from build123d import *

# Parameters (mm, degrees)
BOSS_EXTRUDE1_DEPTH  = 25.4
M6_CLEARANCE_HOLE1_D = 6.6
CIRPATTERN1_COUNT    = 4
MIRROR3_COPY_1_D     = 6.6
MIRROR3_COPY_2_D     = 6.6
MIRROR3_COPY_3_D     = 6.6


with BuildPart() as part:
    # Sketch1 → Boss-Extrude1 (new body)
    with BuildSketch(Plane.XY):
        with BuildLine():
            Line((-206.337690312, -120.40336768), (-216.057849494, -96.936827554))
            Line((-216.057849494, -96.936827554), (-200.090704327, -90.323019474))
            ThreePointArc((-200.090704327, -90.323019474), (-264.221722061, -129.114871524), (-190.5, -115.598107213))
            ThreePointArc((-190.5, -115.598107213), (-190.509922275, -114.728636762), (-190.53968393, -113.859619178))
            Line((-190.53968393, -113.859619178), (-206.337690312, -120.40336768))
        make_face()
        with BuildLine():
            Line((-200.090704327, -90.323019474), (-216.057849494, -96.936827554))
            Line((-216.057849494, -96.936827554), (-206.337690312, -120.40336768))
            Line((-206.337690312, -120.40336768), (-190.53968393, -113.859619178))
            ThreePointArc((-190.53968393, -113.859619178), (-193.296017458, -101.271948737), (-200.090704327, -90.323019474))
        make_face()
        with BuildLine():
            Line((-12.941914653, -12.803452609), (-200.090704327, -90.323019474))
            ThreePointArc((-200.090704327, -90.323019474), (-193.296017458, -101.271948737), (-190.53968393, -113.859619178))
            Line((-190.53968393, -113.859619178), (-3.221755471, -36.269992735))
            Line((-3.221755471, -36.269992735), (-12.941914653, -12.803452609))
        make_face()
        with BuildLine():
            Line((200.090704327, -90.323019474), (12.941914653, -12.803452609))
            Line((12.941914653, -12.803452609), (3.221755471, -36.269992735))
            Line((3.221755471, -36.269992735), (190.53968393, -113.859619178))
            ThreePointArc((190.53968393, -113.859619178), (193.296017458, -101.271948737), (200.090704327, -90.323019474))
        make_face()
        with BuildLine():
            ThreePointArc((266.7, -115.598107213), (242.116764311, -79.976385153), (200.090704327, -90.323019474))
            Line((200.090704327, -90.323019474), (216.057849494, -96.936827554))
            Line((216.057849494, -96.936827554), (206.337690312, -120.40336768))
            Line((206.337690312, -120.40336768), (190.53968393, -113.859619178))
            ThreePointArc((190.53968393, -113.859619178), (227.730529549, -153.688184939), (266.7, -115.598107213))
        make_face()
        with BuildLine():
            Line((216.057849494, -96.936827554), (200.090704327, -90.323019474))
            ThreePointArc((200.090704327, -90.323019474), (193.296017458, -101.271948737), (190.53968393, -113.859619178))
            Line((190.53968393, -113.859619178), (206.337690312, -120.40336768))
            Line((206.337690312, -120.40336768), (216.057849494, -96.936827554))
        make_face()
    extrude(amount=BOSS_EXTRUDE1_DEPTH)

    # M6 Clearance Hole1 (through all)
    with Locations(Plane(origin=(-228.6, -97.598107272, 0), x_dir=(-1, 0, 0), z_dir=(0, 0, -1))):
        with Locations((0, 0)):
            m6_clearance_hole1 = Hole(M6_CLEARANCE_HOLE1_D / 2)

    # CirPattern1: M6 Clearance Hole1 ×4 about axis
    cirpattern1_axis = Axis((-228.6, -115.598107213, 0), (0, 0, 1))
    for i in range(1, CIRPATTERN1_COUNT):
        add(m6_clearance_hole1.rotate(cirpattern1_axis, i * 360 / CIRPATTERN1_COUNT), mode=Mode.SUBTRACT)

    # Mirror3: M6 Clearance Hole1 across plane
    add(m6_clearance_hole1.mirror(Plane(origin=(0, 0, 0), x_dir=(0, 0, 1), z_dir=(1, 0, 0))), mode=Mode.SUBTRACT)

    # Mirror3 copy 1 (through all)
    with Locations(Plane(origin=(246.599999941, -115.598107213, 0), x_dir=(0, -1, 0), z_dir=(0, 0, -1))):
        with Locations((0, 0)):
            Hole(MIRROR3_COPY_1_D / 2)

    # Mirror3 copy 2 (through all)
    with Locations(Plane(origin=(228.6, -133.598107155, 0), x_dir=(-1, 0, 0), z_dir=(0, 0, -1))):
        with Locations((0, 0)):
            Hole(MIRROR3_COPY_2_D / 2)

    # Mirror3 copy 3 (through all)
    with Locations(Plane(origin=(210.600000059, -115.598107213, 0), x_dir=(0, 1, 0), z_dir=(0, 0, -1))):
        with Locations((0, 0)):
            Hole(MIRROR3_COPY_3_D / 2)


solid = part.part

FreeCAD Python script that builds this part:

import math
import FreeCAD as App
import Part
import Sketcher

V = App.Vector
Q = App.Units.Quantity

doc = App.newDocument("Part")
params = doc.addObject("Spreadsheet::Sheet", "Params")
for row, (alias, value) in enumerate([
    ("sketch1_radius", "1.5 in"),
    ("sketch1_length", "1 in"),
    ("pad1_length", "1 in"),
    ("hole_diameter", "6.6 mm"),
    ("hole2_diameter", "6.6 mm"),
    ("hole3_diameter", "6.6 mm"),
    ("hole4_diameter", "6.6 mm"),
], start=1):
    params.set(f"A{row}", alias)
    params.set(f"B{row}", "=" + value)
    params.setAlias(f"B{row}", alias)

body = doc.addObject("PartDesign::Body", "Body")
body.AllowCompound = True

sketch1 = body.newObject("Sketcher::SketchObject", "Sketch")
sketch1.AttachmentSupport = (doc.getObject("XY_Plane"), [""])
sketch1.MapMode = "FlatFace"
sketch1.addGeometry([
    Part.ArcOfCircle(Part.Circle(V(-228.6, -115.6, 0), V(0, 0, 1), 38.1), math.radians(42), math.radians(360)),
    Part.ArcOfCircle(Part.Circle(V(-228.6, -115.6, 0), V(0, 0, 1), 38.1), math.radians(0), math.radians(2.62)),
    Part.LineSegment(V(-190.5, -113.9, 0), V(-3.2, -36.3, 0)),
    Part.LineSegment(V(-3.2, -36.3, 0), V(-12.9, -12.8, 0)),
    Part.LineSegment(V(-12.9, -12.8, 0), V(-200.1, -90.3, 0)),
    Part.LineSegment(V(12.9, -12.8, 0), V(3.2, -36.3, 0)),
    Part.LineSegment(V(3.2, -36.3, 0), V(190.5, -113.9, 0)),
    Part.ArcOfCircle(Part.Circle(V(228.6, -115.6, 0), V(0, 0, 1), 38.1), math.radians(177), math.radians(360)),
    Part.ArcOfCircle(Part.Circle(V(228.6, -115.6, 0), V(0, 0, 1), 38.1), math.radians(0), math.radians(138)),
    Part.LineSegment(V(200.1, -90.3, 0), V(12.9, -12.8, 0)),
], False)
sketch1.addConstraint([
    Sketcher.Constraint("Tangent", 0, 2, 1, 1),
    Sketcher.Constraint("Coincident", 1, 2, 2, 1),
    Sketcher.Constraint("Coincident", 2, 2, 3, 1),
    Sketcher.Constraint("Coincident", 3, 2, 4, 1),
    Sketcher.Constraint("Coincident", 4, 2, 0, 1),
    Sketcher.Constraint("Coincident", 5, 2, 6, 1),
    Sketcher.Constraint("Coincident", 6, 2, 7, 1),
    Sketcher.Constraint("Tangent", 7, 2, 8, 1),
    Sketcher.Constraint("Coincident", 8, 2, 9, 1),
    Sketcher.Constraint("Coincident", 9, 2, 5, 1),
    Sketcher.Constraint("Equal", 0, 1),
    Sketcher.Constraint("Equal", 1, 7),
    Sketcher.Constraint("Equal", 7, 8),
    Sketcher.Constraint("Symmetric", 0, 3, 7, 3, -2),
    Sketcher.Constraint("Symmetric", 2, 2, 5, 2, -2),
    Sketcher.Constraint("Symmetric", 3, 2, 9, 2, -2),
    Sketcher.Constraint("Perpendicular", 2, 3),
    Sketcher.Constraint("Perpendicular", 3, 4),
    Sketcher.Constraint("Perpendicular", 5, 6),
    Sketcher.Constraint("Parallel", 6, 9),
    Sketcher.Constraint("Horizontal", 8, 3, 0, 2),
    Sketcher.Constraint("Horizontal", 0, 2, 7, 2),
    Sketcher.Constraint("Radius", 0, Q("1.5 in")),
    Sketcher.Constraint("Distance", 3, Q("1 in")),
    Sketcher.Constraint("DistanceX", 0, 3, -1, 1, Q("9 in")),
    Sketcher.Constraint("Angle", 2, Q("22.5 deg")),
    Sketcher.Constraint("DistanceY", 1, 2, 4, 2, 23.5366),
    Sketcher.Constraint("DistanceX", 3, 2, 6, 2, 203.481599),
    Sketcher.Constraint("DistanceY", 1, 2, -1, 1, 113.859619),
])
sketch1.setExpression("Constraints[22]", "Params.sketch1_radius")
sketch1.setExpression("Constraints[23]", "Params.sketch1_length")
pad1 = body.newObject("PartDesign::Pad", "Pad")
pad1.Profile = sketch1
pad1.setExpression("Length", "Params.pad1_length")

sketch2 = body.newObject("Sketcher::SketchObject", "Sketch001")
sketch2.AttachmentSupport = (doc.getObject("XY_Plane"), [""])
sketch2.MapMode = "FlatFace"
sketch2.addGeometry(Part.Circle(V(-228.6, -97.6, 0), V(0, 0, 1), 3.3), False)
sketch2.addConstraint([
    Sketcher.Constraint("DistanceX", 0, 3, -1, 1, Q("9 in")),
    Sketcher.Constraint("Diameter", 0, 6.6),
    Sketcher.Constraint("DistanceY", 0, 3, -1, 1, 97.598107),
])
doc.recompute()
hole = body.newObject("PartDesign::Hole", "Hole")
hole.Profile = sketch2
hole.ThreadType = "None"
hole.setExpression("Diameter", "Params.hole_diameter")
hole.DepthType = "ThroughAll"
hole.Reversed = True
doc.recompute()

datumline = body.newObject("PartDesign::Line", "DatumLine")
datumline.Placement = App.Placement(V(-228.6, -115.598107, 0), App.Rotation(V(0, 0, 1), V(0, 0, 1)))
polarpattern = body.newObject("PartDesign::PolarPattern", "PolarPattern")
polarpattern.Originals = [hole]
polarpattern.Axis = (datumline, [""])
polarpattern.Angle = 360
polarpattern.Occurrences = 4
body.Tip = polarpattern
doc.recompute()

mirrored = body.newObject("PartDesign::Mirrored", "Mirrored")
mirrored.Originals = [hole]
mirrored.MirrorPlane = (doc.getObject("YZ_Plane"), [""])
body.Tip = mirrored

sketch3 = body.newObject("Sketcher::SketchObject", "Sketch002")
sketch3.AttachmentSupport = (doc.getObject("XY_Plane"), [""])
sketch3.MapMode = "FlatFace"
sketch3.addGeometry(Part.Circle(V(246.6, -115.6, 0), V(0, 0, 1), 3.3), False)
sketch3.addConstraint([
    Sketcher.Constraint("Diameter", 0, 6.6),
    Sketcher.Constraint("DistanceX", -1, 1, 0, 3, 246.6),
    Sketcher.Constraint("DistanceY", 0, 3, -1, 1, 115.598107),
])
doc.recompute()
hole2 = body.newObject("PartDesign::Hole", "Hole001")
hole2.Profile = sketch3
hole2.ThreadType = "None"
hole2.setExpression("Diameter", "Params.hole2_diameter")
hole2.DepthType = "ThroughAll"
hole2.Reversed = True

sketch4 = body.newObject("Sketcher::SketchObject", "Sketch003")
sketch4.AttachmentSupport = (doc.getObject("XY_Plane"), [""])
sketch4.MapMode = "FlatFace"
sketch4.addGeometry(Part.Circle(V(228.6, -133.6, 0), V(0, 0, 1), 3.3), False)
sketch4.addConstraint([
    Sketcher.Constraint("DistanceX", -1, 1, 0, 3, Q("9 in")),
    Sketcher.Constraint("Diameter", 0, 6.6),
    Sketcher.Constraint("DistanceY", 0, 3, -1, 1, 133.598107),
])
doc.recompute()
hole3 = body.newObject("PartDesign::Hole", "Hole002")
hole3.Profile = sketch4
hole3.ThreadType = "None"
hole3.setExpression("Diameter", "Params.hole3_diameter")
hole3.DepthType = "ThroughAll"
hole3.Reversed = True

sketch5 = body.newObject("Sketcher::SketchObject", "Sketch004")
sketch5.AttachmentSupport = (doc.getObject("XY_Plane"), [""])
sketch5.MapMode = "FlatFace"
sketch5.addGeometry(Part.Circle(V(210.6, -115.6, 0), V(0, 0, 1), 3.3), False)
sketch5.addConstraint([
    Sketcher.Constraint("Diameter", 0, 6.6),
    Sketcher.Constraint("DistanceX", -1, 1, 0, 3, 210.6),
    Sketcher.Constraint("DistanceY", 0, 3, -1, 1, 115.598107),
])
doc.recompute()
hole4 = body.newObject("PartDesign::Hole", "Hole003")
hole4.Profile = sketch5
hole4.ThreadType = "None"
hole4.setExpression("Diameter", "Params.hole4_diameter")
hole4.DepthType = "ThroughAll"
hole4.Reversed = True

doc.recompute()
